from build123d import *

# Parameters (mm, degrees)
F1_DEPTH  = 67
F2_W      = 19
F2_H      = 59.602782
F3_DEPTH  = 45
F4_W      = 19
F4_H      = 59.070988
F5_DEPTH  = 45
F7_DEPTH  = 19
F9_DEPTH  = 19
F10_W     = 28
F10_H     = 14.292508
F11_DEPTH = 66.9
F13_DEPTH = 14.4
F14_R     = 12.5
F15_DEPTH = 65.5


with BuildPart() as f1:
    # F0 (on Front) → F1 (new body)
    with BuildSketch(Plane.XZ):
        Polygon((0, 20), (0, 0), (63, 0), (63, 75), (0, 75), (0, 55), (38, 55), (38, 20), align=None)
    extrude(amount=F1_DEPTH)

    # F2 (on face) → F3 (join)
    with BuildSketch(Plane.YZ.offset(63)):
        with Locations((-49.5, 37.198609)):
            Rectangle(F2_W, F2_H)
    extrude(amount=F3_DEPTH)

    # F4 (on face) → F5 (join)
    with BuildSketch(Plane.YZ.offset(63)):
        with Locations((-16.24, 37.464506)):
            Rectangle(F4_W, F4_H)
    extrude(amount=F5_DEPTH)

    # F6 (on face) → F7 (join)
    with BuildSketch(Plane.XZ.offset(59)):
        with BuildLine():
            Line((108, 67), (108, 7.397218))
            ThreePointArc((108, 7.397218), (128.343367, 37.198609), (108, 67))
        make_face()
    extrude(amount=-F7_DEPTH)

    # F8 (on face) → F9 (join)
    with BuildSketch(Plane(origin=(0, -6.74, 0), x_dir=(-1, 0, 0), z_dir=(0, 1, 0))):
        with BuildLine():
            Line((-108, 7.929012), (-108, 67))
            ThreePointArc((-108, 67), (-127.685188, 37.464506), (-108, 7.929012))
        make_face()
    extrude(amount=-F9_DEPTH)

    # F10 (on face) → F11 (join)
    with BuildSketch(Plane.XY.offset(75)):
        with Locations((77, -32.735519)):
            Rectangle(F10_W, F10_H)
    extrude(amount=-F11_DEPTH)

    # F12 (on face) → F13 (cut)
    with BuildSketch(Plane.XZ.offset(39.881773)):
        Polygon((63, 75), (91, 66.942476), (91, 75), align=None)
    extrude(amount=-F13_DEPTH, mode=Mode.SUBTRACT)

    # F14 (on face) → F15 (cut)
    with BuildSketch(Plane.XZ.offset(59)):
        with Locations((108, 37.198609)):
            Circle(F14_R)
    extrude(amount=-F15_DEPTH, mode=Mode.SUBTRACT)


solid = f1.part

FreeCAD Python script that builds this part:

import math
import FreeCAD as App
import Part
import Sketcher

V = App.Vector
Q = App.Units.Quantity

doc = App.newDocument("Part")
body = doc.addObject("PartDesign::Body", "Body")

# Sketch on XZ plane
sketch1 = body.newObject("Sketcher::SketchObject", "Sketch")
sketch1.AttachmentSupport = (doc.getObject("XZ_Plane"), [""])
sketch1.MapMode = "FlatFace"
sketch1.addGeometry([
    Part.LineSegment(V(0, 20, 0), V(0, 0, 0)),  # 0
    Part.LineSegment(V(0, 0, 0), V(63, 0, 0)),  # 1
    Part.LineSegment(V(63, 0, 0), V(63, 75, 0)),  # 2
    Part.LineSegment(V(63, 75, 0), V(0, 75, 0)),  # 3
    Part.LineSegment(V(0, 75, 0), V(0, 55, 0)),  # 4
    Part.LineSegment(V(0, 55, 0), V(38, 55, 0)),  # 5
    Part.LineSegment(V(38, 55, 0), V(38, 20, 0)),  # 6
    Part.LineSegment(V(38, 20, 0), V(0, 20, 0)),  # 7
], False)
sketch1.addConstraint([
    Sketcher.Constraint("Coincident", 0, 2, 1, 1),
    Sketcher.Constraint("Coincident", 1, 2, 2, 1),
    Sketcher.Constraint("Coincident", 2, 2, 3, 1),
    Sketcher.Constraint("Coincident", 3, 2, 4, 1),
    Sketcher.Constraint("Coincident", 4, 2, 5, 1),
    Sketcher.Constraint("Coincident", 5, 2, 6, 1),
    Sketcher.Constraint("Coincident", 6, 2, 7, 1),
    Sketcher.Constraint("Coincident", 7, 2, 0, 1),
    Sketcher.Constraint("Vertical", 0),
    Sketcher.Constraint("Horizontal", 1),
    Sketcher.Constraint("Vertical", 2),
    Sketcher.Constraint("Horizontal", 3),
    Sketcher.Constraint("Vertical", 4),
    Sketcher.Constraint("Horizontal", 5),
    Sketcher.Constraint("Vertical", 6),
    Sketcher.Constraint("Horizontal", 7),
    Sketcher.Constraint("Coincident", 0, 2, -1, 1),
    Sketcher.Constraint("PointOnObject", 3, 2, -2),
    Sketcher.Constraint("Equal", 0, 4),
    Sketcher.Constraint("DistanceX", 1, 1, 1, 2, Q("63 mm")),
    Sketcher.Constraint("DistanceX", 5, 1, 5, 2, Q("38 mm")),
    Sketcher.Constraint("DistanceY", 0, 2, 0, 1, Q("20 mm")),
    Sketcher.Constraint("DistanceY", 2, 1, 2, 2, Q("75 mm")),
])
pad1 = body.newObject("PartDesign::Pad", "Pad")
pad1.Profile = sketch1
pad1.Length = 67

# Sketch on YZ plane
sketch2 = body.newObject("Sketcher::SketchObject", "Sketch001")
sketch2.AttachmentSupport = (doc.getObject("YZ_Plane"), [""])
sketch2.MapMode = "FlatFace"
sketch2.AttachmentOffset = App.Placement(V(0, 0, 63), App.Rotation())
sketch2.addGeometry([
    Part.LineSegment(V(-59, 67, 0), V(-59, 7, 0)),
    Part.LineSegment(V(-59, 7, 0), V(-40, 7, 0)),
    Part.LineSegment(V(-40, 7, 0), V(-40, 67, 0)),
    Part.LineSegment(V(-40, 67, 0), V(-59, 67, 0)),
], False)
sketch2.addConstraint([
    Sketcher.Constraint("Coincident", 0, 2, 1, 1),
    Sketcher.Constraint("Coincident", 1, 2, 2, 1),
    Sketcher.Constraint("Coincident", 2, 2, 3, 1),
    Sketcher.Constraint("Coincident", 3, 2, 0, 1),
    Sketcher.Constraint("Vertical", 0),
    Sketcher.Constraint("Horizontal", 1),
    Sketcher.Constraint("Vertical", 2),
    Sketcher.Constraint("Horizontal", 3),
    Sketcher.Constraint("DistanceX", 1, 1, 1, 2, Q("19 mm")),
    Sketcher.Constraint("DistanceX", 0, 2, -1, 1, Q("59 mm")),
    Sketcher.Constraint("DistanceY", -1, 1, 2, 2, Q("67 mm")),
    Sketcher.Constraint("DistanceY", 0, 2, 0, 1, Q("59.602782 mm")),
])
pad2 = body.newObject("PartDesign::Pad", "Pad001")
pad2.Profile = sketch2
pad2.Length = 45

# Sketch on YZ plane
sketch3 = body.newObject("Sketcher::SketchObject", "Sketch002")
sketch3.AttachmentSupport = (doc.getObject("YZ_Plane"), [""])
sketch3.MapMode = "FlatFace"
sketch3.AttachmentOffset = App.Placement(V(0, 0, 63), App.Rotation())
sketch3.addGeometry([
    Part.LineSegment(V(-26, 67, 0), V(-26, 8, 0)),
    Part.LineSegment(V(-26, 8, 0), V(-7, 8, 0)),
    Part.LineSegment(V(-7, 8, 0), V(-7, 67, 0)),
    Part.LineSegment(V(-7, 67, 0), V(-26, 67, 0)),
], False)
sketch3.addConstraint([
    Sketcher.Constraint("Coincident", 0, 2, 1, 1),
    Sketcher.Constraint("Coincident", 1, 2, 2, 1),
    Sketcher.Constraint("Coincident", 2, 2, 3, 1),
    Sketcher.Constraint("Coincident", 3, 2, 0, 1),
    Sketcher.Constraint("Vertical", 0),
    Sketcher.Constraint("Horizontal", 1),
    Sketcher.Constraint("Vertical", 2),
    Sketcher.Constraint("Horizontal", 3),
    Sketcher.Constraint("DistanceX", 1, 1, 1, 2, Q("19 mm")),
    Sketcher.Constraint("DistanceY", -1, 1, 2, 2, Q("67 mm")),
    Sketcher.Constraint("DistanceX", 0, 2, -1, 1, Q("25.74 mm")),
    Sketcher.Constraint("DistanceY", 0, 2, 0, 1, Q("59.070988 mm")),
])
pad3 = body.newObject("PartDesign::Pad", "Pad002")
pad3.Profile = sketch3
pad3.Length = 45

# Sketch on XZ plane
sketch4 = body.newObject("Sketcher::SketchObject", "Sketch003")
sketch4.AttachmentSupport = (doc.getObject("XZ_Plane"), [""])
sketch4.MapMode = "FlatFace"
sketch4.AttachmentOffset = App.Placement(V(0, 0, 59), App.Rotation())
sketch4.addGeometry([
    Part.LineSegment(V(108, 67, 0), V(108, 7, 0)),
    Part.ArcOfCircle(Part.Circle(V(96, 37, 0), V(0, 0, 1), 32), math.radians(-69), math.radians(69)),
], False)
sketch4.addConstraint([
    Sketcher.Constraint("Coincident", 0, 1, 1, 2),
    Sketcher.Constraint("Coincident", 1, 1, 0, 2),
    Sketcher.Constraint("Vertical", 0),
    Sketcher.Constraint("Radius", 1, Q("32 mm")),
    Sketcher.Constraint("DistanceX", -1, 1, 0, 1, Q("108 mm")),
    Sketcher.Constraint("DistanceY", -1, 1, 0, 1, Q("67 mm")),
    Sketcher.Constraint("DistanceY", 0, 2, 0, 1, Q("59.602782 mm")),
])
pad4 = body.newObject("PartDesign::Pad", "Pad003")
pad4.Profile = sketch4
pad4.Length = 19
pad4.Reversed = True

# Sketch on XZ plane
sketch5 = body.newObject("Sketcher::SketchObject", "Sketch004")
sketch5.AttachmentSupport = (doc.getObject("XZ_Plane"), [""])
sketch5.MapMode = "FlatFace"
sketch5.AttachmentOffset = App.Placement(V(0, 0, 6.74), App.Rotation())
sketch5.addGeometry([
    Part.LineSegment(V(108, 8, 0), V(108, 67, 0)),
    Part.ArcOfCircle(Part.Circle(V(96, 37, 0), V(0, 0, 1), 32), math.radians(-67), math.radians(67)),
], False)
sketch5.addConstraint([
    Sketcher.Constraint("Coincident", 0, 1, 1, 1),
    Sketcher.Constraint("Coincident", 1, 2, 0, 2),
    Sketcher.Constraint("Vertical", 0),
    Sketcher.Constraint("Radius", 1, Q("32 mm")),
    Sketcher.Constraint("DistanceX", -1, 1, 0, 1, Q("108 mm")),
    Sketcher.Constraint("DistanceY", -1, 1, 1, 2, Q("67 mm")),
    Sketcher.Constraint("DistanceY", 0, 1, 0, 2, Q("59.070988 mm")),
])
pad5 = body.newObject("PartDesign::Pad", "Pad004")
pad5.Profile = sketch5
pad5.Length = 19

# Sketch on XY plane
sketch6 = body.newObject("Sketcher::SketchObject", "Sketch005")
sketch6.AttachmentSupport = (doc.getObject("XY_Plane"), [""])
sketch6.MapMode = "FlatFace"
sketch6.AttachmentOffset = App.Placement(V(0, 0, 75), App.Rotation())
sketch6.addGeometry([
    Part.LineSegment(V(63, -26, 0), V(63, -40, 0)),
    Part.LineSegment(V(63, -40, 0), V(91, -40, 0)),
    Part.LineSegment(V(91, -40, 0), V(91, -26, 0)),
    Part.LineSegment(V(91, -26, 0), V(63, -26, 0)),
], False)
sketch6.addConstraint([
    Sketcher.Constraint("Coincident", 0, 2, 1, 1),
    Sketcher.Constraint("Coincident", 1, 2, 2, 1),
    Sketcher.Constraint("Coincident", 2, 2, 3, 1),
    Sketcher.Constraint("Coincident", 3, 2, 0, 1),
    Sketcher.Constraint("Vertical", 0),
    Sketcher.Constraint("Horizontal", 1),
    Sketcher.Constraint("Vertical", 2),
    Sketcher.Constraint("Horizontal", 3),
    Sketcher.Constraint("DistanceX", 1, 1, 1, 2, Q("28 mm")),
    Sketcher.Constraint("DistanceX", -1, 1, 0, 2, Q("63 mm")),
    Sketcher.Constraint("DistanceY", 0, 2, 0, 1, Q("14.292508 mm")),
    Sketcher.Constraint("DistanceY", 0, 2, -1, 1, Q("39.881773 mm")),
])
pad6 = body.newObject("PartDesign::Pad", "Pad005")
pad6.Profile = sketch6
pad6.Length = 66.9
pad6.Reversed = True

# Sketch on XZ plane
sketch7 = body.newObject("Sketcher::SketchObject", "Sketch006")
sketch7.AttachmentSupport = (doc.getObject("XZ_Plane"), [""])
sketch7.MapMode = "FlatFace"
sketch7.AttachmentOffset = App.Placement(V(0, 0, 39.881773), App.Rotation())
sketch7.addGeometry([
    Part.LineSegment(V(63, 75, 0), V(91, 67, 0)),
    Part.LineSegment(V(91, 67, 0), V(91, 75, 0)),
    Part.LineSegment(V(91, 75, 0), V(63, 75, 0)),
], False)
sketch7.addConstraint([
    Sketcher.Constraint("Coincident", 0, 2, 1, 1),
    Sketcher.Constraint("Coincident", 1, 2, 2, 1),
    Sketcher.Constraint("Coincident", 2, 2, 0, 1),
    Sketcher.Constraint("Vertical", 1),
    Sketcher.Constraint("Horizontal", 2),
    Sketcher.Constraint("DistanceX", 2, 2, 2, 1, Q("28 mm")),
    Sketcher.Constraint("DistanceX", -1, 1, 0, 2, Q("91 mm")),
    Sketcher.Constraint("DistanceY", -1, 1, 1, 2, Q("75 mm")),
    Sketcher.Constraint("DistanceY", 1, 1, 1, 2, Q("8.057524 mm")),
])
pocket1 = body.newObject("PartDesign::Pocket", "Pocket")
pocket1.Profile = sketch7
pocket1.Length = 14.4

# Sketch on XZ plane
sketch8 = body.newObject("Sketcher::SketchObject", "Sketch007")
sketch8.AttachmentSupport = (doc.getObject("XZ_Plane"), [""])
sketch8.MapMode = "FlatFace"
sketch8.AttachmentOffset = App.Placement(V(0, 0, 59), App.Rotation())
sketch8.addGeometry(Part.Circle(V(108, 37, 0), V(0, 0, 1), 12), False)
sketch8.addConstraint([
    Sketcher.Constraint("Diameter", 0, Q("25 mm")),
    Sketcher.Constraint("DistanceX", -1, 1, 0, 3, Q("108 mm")),
    Sketcher.Constraint("DistanceY", -1, 1, 0, 3, Q("37.198609 mm")),
])
pocket2 = body.newObject("PartDesign::Pocket", "Pocket001")
pocket2.Profile = sketch8
pocket2.Length = 65.5

doc.recompute()
